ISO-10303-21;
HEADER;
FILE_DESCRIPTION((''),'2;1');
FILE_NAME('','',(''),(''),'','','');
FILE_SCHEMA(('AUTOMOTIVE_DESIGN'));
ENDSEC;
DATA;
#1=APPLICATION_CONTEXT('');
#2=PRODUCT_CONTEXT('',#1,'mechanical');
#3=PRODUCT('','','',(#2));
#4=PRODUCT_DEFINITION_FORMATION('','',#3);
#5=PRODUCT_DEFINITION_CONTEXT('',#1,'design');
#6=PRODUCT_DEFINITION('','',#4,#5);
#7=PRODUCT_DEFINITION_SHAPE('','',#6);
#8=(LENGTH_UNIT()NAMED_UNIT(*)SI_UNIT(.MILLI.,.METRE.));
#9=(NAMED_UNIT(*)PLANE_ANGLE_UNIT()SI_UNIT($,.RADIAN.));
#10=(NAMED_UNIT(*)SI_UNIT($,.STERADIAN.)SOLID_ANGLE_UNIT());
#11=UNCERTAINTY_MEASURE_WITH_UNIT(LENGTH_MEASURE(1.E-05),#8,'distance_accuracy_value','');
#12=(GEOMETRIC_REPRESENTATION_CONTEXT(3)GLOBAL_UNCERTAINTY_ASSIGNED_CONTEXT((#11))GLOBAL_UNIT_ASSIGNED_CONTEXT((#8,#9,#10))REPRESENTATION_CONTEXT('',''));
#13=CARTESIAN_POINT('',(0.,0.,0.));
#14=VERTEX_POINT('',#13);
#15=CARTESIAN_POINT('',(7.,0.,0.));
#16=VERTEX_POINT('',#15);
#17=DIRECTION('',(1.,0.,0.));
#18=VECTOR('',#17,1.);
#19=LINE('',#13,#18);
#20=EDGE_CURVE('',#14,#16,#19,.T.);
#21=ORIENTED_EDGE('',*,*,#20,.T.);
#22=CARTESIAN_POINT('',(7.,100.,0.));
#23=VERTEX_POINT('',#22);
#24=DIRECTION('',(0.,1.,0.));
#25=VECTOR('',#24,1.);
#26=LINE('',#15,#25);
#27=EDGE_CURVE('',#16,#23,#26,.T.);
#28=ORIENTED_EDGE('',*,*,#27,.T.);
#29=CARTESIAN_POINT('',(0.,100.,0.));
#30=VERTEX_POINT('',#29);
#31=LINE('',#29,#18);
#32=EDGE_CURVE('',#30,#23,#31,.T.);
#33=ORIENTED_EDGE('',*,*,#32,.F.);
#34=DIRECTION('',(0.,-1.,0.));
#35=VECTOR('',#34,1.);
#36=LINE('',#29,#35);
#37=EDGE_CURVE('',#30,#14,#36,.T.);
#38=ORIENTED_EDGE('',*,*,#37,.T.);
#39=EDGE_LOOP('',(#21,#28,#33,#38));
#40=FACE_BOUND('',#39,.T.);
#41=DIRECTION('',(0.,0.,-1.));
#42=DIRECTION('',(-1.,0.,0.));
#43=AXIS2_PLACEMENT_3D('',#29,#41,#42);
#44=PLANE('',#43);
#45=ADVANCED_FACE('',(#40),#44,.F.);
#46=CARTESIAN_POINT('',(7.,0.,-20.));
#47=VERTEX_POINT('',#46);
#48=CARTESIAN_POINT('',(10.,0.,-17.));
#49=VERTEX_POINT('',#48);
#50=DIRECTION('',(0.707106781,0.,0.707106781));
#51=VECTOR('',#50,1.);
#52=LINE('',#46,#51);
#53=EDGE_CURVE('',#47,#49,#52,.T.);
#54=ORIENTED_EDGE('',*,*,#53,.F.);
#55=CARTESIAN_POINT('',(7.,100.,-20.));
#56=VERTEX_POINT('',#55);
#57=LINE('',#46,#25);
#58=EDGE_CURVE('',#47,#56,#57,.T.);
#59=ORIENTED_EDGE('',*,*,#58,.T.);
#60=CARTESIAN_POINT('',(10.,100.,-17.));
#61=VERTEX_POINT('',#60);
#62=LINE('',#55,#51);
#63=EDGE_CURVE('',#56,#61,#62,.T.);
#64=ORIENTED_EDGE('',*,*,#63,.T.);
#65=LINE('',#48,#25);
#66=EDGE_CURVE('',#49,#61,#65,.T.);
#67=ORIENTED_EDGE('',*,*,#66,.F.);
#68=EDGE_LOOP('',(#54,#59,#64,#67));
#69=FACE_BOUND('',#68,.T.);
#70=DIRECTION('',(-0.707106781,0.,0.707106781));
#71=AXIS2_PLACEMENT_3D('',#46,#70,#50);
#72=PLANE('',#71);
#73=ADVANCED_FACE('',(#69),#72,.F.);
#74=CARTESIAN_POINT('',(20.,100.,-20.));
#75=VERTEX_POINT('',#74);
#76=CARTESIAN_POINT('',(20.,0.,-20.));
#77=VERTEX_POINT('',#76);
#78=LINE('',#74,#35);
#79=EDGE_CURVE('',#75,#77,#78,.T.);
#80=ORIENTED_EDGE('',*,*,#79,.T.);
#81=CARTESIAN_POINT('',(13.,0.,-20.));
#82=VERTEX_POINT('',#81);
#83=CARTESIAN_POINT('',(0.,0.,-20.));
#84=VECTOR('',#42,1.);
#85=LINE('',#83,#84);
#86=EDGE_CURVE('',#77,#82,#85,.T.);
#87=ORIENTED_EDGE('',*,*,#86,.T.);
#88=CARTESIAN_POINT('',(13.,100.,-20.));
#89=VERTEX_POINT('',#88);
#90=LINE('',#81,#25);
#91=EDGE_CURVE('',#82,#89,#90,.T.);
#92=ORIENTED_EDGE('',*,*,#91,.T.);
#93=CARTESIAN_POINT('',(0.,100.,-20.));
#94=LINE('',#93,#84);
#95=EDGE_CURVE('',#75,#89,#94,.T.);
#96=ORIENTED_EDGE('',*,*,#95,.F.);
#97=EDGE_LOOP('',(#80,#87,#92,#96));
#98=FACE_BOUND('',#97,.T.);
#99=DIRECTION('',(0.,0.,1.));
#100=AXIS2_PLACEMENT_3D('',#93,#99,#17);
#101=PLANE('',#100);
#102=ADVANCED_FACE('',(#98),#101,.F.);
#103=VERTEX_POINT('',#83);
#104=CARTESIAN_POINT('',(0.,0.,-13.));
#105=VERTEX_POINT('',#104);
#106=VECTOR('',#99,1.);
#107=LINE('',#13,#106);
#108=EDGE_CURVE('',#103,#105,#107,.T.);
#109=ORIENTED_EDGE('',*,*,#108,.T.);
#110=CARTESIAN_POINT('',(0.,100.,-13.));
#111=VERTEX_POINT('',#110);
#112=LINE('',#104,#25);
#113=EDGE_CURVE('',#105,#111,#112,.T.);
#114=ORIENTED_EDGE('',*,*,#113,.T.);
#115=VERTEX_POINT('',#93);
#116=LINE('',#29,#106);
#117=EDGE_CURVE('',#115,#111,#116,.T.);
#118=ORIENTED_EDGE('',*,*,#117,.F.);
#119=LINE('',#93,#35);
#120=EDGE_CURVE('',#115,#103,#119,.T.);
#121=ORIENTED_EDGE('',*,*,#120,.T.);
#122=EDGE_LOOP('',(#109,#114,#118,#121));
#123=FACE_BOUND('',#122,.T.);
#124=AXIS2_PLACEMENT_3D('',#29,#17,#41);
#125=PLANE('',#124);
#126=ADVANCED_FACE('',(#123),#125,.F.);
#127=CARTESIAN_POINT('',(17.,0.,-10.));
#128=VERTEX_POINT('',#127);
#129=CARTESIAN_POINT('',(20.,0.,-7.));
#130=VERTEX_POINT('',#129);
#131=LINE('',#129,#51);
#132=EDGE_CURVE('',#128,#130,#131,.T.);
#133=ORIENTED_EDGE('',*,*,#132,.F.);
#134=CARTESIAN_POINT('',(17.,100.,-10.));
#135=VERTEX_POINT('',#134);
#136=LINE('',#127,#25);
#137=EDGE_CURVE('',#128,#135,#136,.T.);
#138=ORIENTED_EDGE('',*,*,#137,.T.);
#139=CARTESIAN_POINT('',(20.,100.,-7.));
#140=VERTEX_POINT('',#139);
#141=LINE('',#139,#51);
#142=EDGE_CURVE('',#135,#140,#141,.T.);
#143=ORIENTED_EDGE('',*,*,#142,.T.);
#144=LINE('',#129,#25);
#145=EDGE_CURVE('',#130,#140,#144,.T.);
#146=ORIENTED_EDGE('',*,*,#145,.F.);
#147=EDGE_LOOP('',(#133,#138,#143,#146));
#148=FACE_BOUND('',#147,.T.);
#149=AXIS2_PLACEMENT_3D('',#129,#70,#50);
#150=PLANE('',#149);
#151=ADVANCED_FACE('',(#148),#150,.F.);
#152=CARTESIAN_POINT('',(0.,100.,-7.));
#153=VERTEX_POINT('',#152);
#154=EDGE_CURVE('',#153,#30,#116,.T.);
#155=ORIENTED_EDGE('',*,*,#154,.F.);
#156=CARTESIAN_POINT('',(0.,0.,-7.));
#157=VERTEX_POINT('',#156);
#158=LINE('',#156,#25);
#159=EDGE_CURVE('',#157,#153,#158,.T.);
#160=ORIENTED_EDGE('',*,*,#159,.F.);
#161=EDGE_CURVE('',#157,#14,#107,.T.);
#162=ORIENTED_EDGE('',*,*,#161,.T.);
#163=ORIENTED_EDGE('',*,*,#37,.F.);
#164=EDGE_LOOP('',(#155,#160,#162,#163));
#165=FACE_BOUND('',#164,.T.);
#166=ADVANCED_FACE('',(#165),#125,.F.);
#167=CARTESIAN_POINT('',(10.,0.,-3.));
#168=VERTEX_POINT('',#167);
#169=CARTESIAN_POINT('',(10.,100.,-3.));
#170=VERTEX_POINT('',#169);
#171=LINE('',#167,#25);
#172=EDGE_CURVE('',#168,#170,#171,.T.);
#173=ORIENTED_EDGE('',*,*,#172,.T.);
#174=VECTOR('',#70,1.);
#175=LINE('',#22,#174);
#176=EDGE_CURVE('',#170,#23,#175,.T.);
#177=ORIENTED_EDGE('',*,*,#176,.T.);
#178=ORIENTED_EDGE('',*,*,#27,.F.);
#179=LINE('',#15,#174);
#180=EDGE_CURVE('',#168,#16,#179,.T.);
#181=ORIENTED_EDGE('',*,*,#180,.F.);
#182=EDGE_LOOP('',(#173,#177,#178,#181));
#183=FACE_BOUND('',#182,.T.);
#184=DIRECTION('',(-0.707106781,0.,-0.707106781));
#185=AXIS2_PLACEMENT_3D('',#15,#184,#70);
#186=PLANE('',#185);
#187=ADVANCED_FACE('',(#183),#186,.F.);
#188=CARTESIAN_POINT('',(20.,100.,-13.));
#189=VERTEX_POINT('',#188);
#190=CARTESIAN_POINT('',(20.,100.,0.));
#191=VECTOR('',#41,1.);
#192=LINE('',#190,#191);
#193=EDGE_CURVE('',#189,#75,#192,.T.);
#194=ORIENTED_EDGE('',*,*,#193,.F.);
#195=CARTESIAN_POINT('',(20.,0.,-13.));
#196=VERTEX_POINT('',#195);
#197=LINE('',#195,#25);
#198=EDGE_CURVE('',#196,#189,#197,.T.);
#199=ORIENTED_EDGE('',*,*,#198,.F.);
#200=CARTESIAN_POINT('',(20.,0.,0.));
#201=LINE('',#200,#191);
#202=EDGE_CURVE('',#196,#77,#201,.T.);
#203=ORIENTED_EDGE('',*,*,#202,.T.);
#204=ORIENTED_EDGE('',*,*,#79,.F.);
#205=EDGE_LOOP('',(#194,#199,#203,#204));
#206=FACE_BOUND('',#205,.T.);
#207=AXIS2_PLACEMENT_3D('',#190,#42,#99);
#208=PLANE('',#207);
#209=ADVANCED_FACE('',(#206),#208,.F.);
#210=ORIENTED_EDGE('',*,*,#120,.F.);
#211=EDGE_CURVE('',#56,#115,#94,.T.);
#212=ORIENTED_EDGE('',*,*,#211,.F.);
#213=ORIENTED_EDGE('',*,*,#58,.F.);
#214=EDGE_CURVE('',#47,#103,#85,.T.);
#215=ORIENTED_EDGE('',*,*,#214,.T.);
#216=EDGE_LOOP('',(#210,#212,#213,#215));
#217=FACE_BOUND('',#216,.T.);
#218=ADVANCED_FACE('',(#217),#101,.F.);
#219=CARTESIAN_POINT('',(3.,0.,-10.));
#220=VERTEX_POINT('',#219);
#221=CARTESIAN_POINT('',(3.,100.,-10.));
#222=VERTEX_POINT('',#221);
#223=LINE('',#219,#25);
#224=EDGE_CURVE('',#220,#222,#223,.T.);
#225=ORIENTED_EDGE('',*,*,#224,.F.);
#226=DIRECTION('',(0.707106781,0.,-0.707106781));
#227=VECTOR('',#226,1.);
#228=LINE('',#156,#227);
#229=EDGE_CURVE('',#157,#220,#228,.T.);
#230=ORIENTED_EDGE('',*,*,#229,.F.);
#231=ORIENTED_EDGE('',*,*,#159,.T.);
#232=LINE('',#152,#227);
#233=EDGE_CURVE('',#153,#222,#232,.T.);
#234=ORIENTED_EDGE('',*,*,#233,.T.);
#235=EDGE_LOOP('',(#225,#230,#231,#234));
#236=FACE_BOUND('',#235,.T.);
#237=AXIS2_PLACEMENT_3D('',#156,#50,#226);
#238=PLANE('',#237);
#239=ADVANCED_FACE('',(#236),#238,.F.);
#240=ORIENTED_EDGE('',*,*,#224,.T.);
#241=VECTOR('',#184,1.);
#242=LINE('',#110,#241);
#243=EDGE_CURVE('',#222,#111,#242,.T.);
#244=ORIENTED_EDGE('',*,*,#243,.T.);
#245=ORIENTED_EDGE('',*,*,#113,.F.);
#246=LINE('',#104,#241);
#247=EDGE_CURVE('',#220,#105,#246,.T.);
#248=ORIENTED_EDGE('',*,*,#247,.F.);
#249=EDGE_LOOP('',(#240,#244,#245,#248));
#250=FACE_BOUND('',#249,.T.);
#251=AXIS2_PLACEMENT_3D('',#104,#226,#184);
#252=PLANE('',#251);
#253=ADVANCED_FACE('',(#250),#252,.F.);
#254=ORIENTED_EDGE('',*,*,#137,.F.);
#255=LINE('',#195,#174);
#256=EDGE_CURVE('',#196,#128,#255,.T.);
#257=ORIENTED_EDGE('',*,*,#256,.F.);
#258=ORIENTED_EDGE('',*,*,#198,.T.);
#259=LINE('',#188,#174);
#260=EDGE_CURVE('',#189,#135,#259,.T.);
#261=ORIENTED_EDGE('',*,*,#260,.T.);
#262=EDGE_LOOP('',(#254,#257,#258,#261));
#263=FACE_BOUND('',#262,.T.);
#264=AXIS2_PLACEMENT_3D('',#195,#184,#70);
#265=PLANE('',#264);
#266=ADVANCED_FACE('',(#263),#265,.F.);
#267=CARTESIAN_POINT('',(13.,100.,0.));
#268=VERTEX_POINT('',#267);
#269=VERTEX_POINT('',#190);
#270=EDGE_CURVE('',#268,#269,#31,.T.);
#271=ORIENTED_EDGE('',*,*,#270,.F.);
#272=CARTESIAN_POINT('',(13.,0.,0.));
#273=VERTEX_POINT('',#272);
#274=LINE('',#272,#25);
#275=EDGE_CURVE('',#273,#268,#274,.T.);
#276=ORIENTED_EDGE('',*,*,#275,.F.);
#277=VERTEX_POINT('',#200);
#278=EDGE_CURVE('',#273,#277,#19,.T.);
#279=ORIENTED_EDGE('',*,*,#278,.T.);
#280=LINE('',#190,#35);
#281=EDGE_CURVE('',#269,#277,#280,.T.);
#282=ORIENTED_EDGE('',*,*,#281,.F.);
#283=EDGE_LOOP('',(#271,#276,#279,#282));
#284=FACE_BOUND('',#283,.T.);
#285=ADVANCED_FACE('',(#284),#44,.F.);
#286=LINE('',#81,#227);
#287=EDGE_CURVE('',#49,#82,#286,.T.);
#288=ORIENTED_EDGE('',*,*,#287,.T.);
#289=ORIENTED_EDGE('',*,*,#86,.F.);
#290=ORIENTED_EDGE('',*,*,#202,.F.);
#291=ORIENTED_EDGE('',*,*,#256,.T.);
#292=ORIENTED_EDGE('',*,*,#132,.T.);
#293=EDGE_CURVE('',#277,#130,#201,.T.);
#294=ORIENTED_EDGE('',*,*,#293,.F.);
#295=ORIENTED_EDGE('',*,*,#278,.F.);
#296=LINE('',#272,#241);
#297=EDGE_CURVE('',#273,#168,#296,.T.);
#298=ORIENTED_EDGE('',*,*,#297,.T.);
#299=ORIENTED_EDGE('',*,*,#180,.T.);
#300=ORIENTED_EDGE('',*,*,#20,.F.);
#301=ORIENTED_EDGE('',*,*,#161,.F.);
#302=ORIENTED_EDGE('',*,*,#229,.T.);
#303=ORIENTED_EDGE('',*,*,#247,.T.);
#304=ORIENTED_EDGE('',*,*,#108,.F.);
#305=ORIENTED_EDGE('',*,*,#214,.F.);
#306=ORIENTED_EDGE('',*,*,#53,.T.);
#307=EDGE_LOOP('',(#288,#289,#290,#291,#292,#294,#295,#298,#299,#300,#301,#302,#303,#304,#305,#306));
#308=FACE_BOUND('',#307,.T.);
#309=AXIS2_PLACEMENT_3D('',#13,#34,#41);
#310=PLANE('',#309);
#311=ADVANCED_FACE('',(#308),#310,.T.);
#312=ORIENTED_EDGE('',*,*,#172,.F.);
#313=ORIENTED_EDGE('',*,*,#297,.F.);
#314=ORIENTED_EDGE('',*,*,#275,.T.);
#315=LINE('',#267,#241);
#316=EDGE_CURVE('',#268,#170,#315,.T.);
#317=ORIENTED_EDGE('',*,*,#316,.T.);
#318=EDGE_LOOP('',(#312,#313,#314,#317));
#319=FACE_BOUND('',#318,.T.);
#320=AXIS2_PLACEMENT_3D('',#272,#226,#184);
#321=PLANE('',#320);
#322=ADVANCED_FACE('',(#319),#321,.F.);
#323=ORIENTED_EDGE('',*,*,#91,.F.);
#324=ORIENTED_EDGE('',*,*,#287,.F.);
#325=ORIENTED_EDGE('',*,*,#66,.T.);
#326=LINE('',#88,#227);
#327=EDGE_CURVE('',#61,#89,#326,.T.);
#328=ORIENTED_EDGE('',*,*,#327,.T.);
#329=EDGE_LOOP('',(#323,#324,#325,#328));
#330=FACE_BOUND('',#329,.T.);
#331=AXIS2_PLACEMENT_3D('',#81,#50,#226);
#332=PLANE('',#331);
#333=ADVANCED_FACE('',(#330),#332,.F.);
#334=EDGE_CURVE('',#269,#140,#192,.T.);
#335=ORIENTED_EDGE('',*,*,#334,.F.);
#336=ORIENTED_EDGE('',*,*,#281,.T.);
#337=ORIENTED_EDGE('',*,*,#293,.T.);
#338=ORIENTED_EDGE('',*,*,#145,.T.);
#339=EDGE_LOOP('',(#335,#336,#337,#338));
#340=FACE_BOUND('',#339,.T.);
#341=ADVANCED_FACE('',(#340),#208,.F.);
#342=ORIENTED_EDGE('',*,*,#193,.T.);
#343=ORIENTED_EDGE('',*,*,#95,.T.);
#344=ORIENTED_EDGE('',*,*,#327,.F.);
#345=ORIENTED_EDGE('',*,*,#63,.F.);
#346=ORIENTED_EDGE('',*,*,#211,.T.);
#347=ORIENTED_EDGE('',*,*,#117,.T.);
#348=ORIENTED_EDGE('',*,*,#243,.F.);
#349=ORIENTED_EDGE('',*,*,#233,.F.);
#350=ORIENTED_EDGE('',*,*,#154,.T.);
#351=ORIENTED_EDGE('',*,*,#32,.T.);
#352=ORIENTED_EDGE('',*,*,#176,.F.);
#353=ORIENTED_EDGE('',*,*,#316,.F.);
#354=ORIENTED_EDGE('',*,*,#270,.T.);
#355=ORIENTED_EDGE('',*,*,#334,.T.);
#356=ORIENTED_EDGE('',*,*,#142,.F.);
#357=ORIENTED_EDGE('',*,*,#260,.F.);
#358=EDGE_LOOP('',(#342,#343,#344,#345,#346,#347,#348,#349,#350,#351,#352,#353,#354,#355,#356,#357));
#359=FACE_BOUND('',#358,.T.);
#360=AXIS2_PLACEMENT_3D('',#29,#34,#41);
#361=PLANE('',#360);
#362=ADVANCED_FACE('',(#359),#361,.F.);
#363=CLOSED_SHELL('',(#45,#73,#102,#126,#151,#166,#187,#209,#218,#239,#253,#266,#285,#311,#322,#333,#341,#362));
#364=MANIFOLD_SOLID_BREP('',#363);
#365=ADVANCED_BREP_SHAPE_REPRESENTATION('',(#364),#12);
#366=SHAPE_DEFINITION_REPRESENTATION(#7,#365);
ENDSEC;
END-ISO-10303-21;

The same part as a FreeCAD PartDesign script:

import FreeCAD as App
import Part
import Sketcher
Q = App.Units.Quantity


def add_polygon(sketch, points):
    """Adds a closed chain of lines whose ends are joined by coincident constraints."""
    first, n = sketch.GeometryCount, len(points)
    for a, b in zip(points, points[1:] + points[:1]):
        sketch.addGeometry(Part.LineSegment(App.Vector(*a, 0), App.Vector(*b, 0)), False)
    for i in range(n):
        sketch.addConstraint(Sketcher.Constraint("Coincident", first + i, 2, first + (i + 1) % n, 1))

doc = App.newDocument("Part")
params = doc.addObject("Spreadsheet::Sheet", "Params")
for row, (alias, value) in enumerate([
    ("sketch1_width", "20 mm"),
    ("pad1_length", "100 mm"),
    ("sketch2_width", "6 mm"),
], start=1):
    params.set(f"A{row}", alias)
    params.set(f"B{row}", "=" + value)
    params.setAlias(f"B{row}", alias)

body = doc.addObject("PartDesign::Body", "Body")

sketch1 = body.newObject("Sketcher::SketchObject", "Sketch")
sketch1.AttachmentSupport = (doc.getObject("XZ_Plane"), [""])
sketch1.MapMode = "FlatFace"
add_polygon(sketch1, [(0, -20), (0, 0), (20, 0), (20, -20)])
sketch1.addConstraint([
    Sketcher.Constraint("Vertical", 0),
    Sketcher.Constraint("Horizontal", 1),
    Sketcher.Constraint("Vertical", 2),
    Sketcher.Constraint("Horizontal", 3),
    Sketcher.Constraint("Coincident", 0, 2, -1, 1),
    Sketcher.Constraint("Equal", 3, 0),
    Sketcher.Constraint("DistanceX", 1, 1, 1, 2, Q("20 mm")),
])
sketch1.setExpression("Constraints[10]", "Params.sketch1_width")
pad1 = body.newObject("PartDesign::Pad", "Pad")
pad1.Profile = sketch1
pad1.setExpression("Length", "Params.pad1_length")
pad1.Reversed = True

sketch2 = body.newObject("Sketcher::SketchObject", "Sketch001")
sketch2.AttachmentSupport = (doc.getObject("XZ_Plane"), [""])
sketch2.MapMode = "FlatFace"
sketch2.AttachmentOffset = App.Placement(App.Vector(0, 0, -100), App.Rotation())
add_polygon(sketch2, [(7, -20), (10, -17), (13, -20)])
add_polygon(sketch2, [(20, -13), (17, -10), (20, -7)])
add_polygon(sketch2, [(0, -13), (0, -7), (3, -10)])
add_polygon(sketch2, [(7, 0), (13, 0), (10, -3)])
sketch2.addConstraint([
    Sketcher.Constraint("Horizontal", 2),
    Sketcher.Constraint("Vertical", 5),
    Sketcher.Constraint("Vertical", 6),
    Sketcher.Constraint("Horizontal", 9),
    Sketcher.Constraint("PointOnObject", 6, 2, -2),
    Sketcher.Constraint("PointOnObject", 9, 2, -1),
    Sketcher.Constraint("Perpendicular", 0, 1),
    Sketcher.Constraint("Parallel", 1, 3),
    Sketcher.Constraint("Perpendicular", 3, 4),
    Sketcher.Constraint("Perpendicular", 4, 7),
    Sketcher.Constraint("Perpendicular", 7, 8),
    Sketcher.Constraint("Parallel", 8, 10),
    Sketcher.Constraint("Perpendicular", 10, 11),
    Sketcher.Constraint("Horizontal", 4, 2, 6, 2),
    Sketcher.Constraint("Horizontal", 3, 2, 7, 2),
    Sketcher.Constraint("Horizontal", 5, 2, 8, 2),
    Sketcher.Constraint("Vertical", 1, 2, 9, 2),
    Sketcher.Constraint("Vertical", 0, 2, 10, 2),
    Sketcher.Constraint("Equal", 9, 5),
    Sketcher.Constraint("DistanceX", 2, 2, 2, 1, Q("6 mm")),
    Sketcher.Constraint("DistanceX", -1, 1, 0, 2, Q("10 mm")),
    Sketcher.Constraint("DistanceY", 0, 2, -1, 1, Q("17 mm")),
    Sketcher.Constraint("DistanceX", -1, 1, 3, 2, Q("17 mm")),
    Sketcher.Constraint("DistanceY", 3, 2, -1, 1, Q("10 mm")),
])
sketch2.setExpression("Constraints[31]", "Params.sketch2_width")
pocket1 = body.newObject("PartDesign::Pocket", "Pocket")
pocket1.Profile = sketch2
pocket1.Type = "ThroughAll"
pocket1.Reversed = True

doc.recompute()
